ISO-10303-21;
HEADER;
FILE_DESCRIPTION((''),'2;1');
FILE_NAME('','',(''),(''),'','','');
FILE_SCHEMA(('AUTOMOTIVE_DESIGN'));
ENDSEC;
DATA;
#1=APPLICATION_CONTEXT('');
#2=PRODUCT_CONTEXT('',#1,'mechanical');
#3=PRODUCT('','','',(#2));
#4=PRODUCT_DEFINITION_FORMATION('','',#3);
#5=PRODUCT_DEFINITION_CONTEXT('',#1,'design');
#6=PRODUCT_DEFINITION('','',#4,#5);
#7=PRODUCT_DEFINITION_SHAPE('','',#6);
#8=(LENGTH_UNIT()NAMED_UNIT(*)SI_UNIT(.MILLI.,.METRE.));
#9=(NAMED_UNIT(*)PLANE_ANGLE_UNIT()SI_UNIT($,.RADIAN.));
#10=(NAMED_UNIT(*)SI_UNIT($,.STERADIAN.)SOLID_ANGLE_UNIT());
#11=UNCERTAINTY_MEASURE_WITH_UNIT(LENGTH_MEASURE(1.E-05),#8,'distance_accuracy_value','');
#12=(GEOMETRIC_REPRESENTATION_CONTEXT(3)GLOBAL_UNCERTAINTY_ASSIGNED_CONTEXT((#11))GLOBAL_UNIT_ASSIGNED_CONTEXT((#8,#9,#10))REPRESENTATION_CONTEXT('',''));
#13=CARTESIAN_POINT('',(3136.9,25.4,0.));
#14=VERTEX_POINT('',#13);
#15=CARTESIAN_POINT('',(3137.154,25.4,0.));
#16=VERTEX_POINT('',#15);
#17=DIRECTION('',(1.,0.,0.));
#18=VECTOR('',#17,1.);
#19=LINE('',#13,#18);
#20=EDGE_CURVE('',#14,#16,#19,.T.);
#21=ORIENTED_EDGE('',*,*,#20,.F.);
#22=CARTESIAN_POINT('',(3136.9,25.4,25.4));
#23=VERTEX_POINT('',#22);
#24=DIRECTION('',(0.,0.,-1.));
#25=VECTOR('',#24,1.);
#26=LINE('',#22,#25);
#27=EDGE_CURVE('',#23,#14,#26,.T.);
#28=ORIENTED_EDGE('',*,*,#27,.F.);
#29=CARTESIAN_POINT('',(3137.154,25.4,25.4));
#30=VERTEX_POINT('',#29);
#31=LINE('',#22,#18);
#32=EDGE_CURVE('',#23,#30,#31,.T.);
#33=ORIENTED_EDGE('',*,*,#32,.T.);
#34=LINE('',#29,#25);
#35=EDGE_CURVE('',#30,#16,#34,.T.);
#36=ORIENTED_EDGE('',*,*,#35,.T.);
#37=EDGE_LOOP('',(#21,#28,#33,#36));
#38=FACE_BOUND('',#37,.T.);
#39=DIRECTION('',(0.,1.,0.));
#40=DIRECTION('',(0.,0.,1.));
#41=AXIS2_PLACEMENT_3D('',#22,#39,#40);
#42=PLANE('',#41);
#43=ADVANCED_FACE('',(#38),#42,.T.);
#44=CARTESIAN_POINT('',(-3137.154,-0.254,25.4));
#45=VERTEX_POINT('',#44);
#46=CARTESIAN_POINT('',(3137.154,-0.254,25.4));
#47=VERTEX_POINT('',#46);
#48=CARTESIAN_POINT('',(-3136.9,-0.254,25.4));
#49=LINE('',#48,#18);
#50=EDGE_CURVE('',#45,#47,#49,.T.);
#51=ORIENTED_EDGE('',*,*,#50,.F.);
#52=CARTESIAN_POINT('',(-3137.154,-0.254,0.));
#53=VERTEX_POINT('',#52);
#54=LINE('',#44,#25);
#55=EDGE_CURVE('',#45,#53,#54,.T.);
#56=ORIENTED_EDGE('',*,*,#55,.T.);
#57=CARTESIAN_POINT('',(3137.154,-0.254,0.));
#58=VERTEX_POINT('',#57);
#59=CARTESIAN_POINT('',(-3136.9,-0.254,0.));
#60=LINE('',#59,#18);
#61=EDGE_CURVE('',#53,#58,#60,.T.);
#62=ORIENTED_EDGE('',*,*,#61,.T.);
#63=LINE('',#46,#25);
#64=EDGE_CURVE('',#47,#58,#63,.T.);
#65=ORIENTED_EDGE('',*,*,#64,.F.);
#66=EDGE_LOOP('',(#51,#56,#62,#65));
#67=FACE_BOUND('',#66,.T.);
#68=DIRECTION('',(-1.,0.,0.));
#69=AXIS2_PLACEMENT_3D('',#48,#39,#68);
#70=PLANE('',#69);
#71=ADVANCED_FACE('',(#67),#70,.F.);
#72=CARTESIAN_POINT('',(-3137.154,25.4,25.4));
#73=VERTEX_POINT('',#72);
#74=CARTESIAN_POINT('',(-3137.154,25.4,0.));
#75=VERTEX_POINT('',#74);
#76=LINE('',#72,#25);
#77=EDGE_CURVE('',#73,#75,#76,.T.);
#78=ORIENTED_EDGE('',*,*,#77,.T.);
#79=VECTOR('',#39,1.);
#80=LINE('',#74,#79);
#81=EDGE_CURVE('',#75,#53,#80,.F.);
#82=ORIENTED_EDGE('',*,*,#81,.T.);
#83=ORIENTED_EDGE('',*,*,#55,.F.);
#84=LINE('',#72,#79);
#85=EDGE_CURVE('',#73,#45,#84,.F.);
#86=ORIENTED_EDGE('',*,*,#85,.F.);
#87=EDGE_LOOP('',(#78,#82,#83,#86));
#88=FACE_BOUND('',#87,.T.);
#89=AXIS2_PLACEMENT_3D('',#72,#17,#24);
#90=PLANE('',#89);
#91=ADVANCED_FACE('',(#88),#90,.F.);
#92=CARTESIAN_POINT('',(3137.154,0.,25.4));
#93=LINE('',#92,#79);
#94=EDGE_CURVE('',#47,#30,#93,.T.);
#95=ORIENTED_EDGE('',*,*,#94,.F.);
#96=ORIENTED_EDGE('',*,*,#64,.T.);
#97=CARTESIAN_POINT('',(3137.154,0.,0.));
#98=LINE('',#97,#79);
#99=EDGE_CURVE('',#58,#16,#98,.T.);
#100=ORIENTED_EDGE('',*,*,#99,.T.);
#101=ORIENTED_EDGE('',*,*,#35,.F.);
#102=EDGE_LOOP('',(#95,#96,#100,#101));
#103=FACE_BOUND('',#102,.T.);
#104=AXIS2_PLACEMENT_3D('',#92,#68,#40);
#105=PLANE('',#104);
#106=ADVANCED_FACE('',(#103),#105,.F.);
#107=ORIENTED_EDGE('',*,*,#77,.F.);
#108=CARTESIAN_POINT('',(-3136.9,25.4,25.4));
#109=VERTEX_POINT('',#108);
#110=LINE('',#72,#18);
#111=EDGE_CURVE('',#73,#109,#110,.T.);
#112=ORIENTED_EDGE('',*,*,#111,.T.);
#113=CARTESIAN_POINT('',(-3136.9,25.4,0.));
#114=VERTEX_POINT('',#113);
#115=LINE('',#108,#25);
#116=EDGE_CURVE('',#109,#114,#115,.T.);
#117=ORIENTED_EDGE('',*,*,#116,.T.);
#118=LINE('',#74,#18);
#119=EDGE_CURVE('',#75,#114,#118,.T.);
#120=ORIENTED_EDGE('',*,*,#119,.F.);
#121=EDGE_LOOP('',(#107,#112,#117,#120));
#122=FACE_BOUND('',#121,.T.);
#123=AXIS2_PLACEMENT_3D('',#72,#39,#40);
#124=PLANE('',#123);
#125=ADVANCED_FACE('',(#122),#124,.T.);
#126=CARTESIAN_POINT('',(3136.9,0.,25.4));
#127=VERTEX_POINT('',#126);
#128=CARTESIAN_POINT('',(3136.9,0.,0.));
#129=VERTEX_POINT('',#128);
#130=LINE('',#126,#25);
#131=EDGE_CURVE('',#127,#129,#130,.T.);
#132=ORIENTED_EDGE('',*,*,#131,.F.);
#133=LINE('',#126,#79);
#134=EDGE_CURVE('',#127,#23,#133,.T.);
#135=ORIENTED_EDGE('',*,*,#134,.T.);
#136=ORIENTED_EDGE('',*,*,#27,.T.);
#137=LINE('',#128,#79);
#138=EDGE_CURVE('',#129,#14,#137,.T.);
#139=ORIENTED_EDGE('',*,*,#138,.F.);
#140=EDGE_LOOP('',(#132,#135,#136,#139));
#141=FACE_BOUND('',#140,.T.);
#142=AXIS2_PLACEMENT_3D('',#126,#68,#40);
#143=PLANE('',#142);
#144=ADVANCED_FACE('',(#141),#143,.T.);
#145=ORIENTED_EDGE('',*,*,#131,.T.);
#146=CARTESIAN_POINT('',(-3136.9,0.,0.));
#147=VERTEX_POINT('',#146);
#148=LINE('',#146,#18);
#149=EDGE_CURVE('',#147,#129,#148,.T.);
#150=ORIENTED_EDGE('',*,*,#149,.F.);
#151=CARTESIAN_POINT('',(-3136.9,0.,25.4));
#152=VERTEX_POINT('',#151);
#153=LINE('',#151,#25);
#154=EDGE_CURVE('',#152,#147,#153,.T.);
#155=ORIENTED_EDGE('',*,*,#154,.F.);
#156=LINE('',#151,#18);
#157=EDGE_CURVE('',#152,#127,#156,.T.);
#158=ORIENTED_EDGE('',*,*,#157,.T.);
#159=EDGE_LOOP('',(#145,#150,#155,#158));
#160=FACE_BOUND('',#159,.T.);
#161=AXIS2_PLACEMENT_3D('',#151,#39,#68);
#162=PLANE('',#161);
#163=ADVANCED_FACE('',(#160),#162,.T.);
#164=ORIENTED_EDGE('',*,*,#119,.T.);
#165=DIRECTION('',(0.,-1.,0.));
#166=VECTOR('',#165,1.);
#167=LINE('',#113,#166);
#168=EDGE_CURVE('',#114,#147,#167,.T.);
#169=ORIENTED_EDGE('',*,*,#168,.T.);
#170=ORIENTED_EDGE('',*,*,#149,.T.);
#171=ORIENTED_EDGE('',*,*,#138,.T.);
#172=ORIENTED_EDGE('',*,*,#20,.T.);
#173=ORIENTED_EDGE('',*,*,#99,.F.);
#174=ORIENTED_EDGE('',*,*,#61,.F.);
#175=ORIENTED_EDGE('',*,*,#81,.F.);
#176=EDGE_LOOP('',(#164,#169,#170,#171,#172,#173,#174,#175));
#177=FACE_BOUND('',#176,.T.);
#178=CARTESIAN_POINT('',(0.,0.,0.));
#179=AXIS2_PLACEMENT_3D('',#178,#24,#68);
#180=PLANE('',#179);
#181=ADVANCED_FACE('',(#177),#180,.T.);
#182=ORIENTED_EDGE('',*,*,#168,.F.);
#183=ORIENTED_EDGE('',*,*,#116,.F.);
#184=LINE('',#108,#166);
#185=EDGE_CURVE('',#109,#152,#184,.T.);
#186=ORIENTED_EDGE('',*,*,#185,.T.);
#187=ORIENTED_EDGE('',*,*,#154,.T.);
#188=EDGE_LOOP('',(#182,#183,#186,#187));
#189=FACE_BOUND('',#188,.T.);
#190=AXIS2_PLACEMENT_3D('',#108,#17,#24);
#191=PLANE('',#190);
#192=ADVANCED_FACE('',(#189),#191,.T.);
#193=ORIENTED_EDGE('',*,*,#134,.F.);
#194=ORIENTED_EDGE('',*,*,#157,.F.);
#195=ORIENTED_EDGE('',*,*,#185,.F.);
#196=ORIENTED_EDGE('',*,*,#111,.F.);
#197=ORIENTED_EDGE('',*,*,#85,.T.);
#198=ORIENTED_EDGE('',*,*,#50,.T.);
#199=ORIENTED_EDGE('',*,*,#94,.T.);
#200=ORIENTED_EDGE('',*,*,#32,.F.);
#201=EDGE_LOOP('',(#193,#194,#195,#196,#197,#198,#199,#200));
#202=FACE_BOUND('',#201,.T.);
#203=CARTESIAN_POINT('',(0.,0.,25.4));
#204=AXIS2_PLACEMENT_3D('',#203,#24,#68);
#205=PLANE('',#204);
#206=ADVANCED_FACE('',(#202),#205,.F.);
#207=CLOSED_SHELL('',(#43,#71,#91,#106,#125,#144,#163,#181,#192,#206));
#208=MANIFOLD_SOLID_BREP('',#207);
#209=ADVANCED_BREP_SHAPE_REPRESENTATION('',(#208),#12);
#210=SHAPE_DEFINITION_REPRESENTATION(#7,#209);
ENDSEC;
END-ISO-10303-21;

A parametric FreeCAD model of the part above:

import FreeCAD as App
import Part
import Sketcher
from FreeCAD import Vector
Q = App.Units.Quantity


def add_polygon(sketch, points):
    """Adds a closed chain of lines whose ends are joined by coincident constraints."""
    first, n = sketch.GeometryCount, len(points)
    for a, b in zip(points, points[1:] + points[:1]):
        sketch.addGeometry(Part.LineSegment(App.Vector(*a, 0), App.Vector(*b, 0)), False)
    for i in range(n):
        sketch.addConstraint(Sketcher.Constraint("Coincident", first + i, 2, first + (i + 1) % n, 1))

doc = App.newDocument("Part")
body = doc.addObject("PartDesign::Body", "Body")

# Sketch on XY plane
sketch1 = doc.addObject("Sketcher::SketchObject", "Sketch")
body.addObject(sketch1)
sketch1.AttachmentSupport = (doc.XY_Plane, [""])
sketch1.MapMode = "FlatFace"
add_polygon(sketch1, [(-3136.9, 0), (-3136.9, 25.4), (-3137.15, 25.4), (-3137.15, -0.25), (3137.15, -0.25), (3137.15, 25.4), (3136.9, 25.4), (3136.9, 0)])  # lines 0-7
sketch1.addConstraint([
    Sketcher.Constraint("Vertical", 0),
    Sketcher.Constraint("Horizontal", 1),
    Sketcher.Constraint("Vertical", 2),
    Sketcher.Constraint("Horizontal", 3),
    Sketcher.Constraint("Vertical", 4),
    Sketcher.Constraint("Horizontal", 5),
    Sketcher.Constraint("Vertical", 6),
    Sketcher.Constraint("Horizontal", 7),
    Sketcher.Constraint("Symmetric", 6, 2, 7, 2, -1, 1),
    Sketcher.Constraint("Symmetric", 1, 2, 4, 2, -2),
    Sketcher.Constraint("DistanceX", 7, 2, 7, 1, Q("247 in")),
    Sketcher.Constraint("DistanceY", 0, 1, 0, 2, Q("1 in")),
    Sketcher.Constraint("DistanceX", 1, 2, 1, 1, Q("0.01 in")),
    Sketcher.Constraint("DistanceY", 2, 2, 2, 1, Q("1.01 in")),
])
pad1 = doc.addObject("PartDesign::Pad", "Pad")
body.addObject(pad1)
pad1.Profile = sketch1
pad1.Length = Q("1 in")

doc.recompute()
